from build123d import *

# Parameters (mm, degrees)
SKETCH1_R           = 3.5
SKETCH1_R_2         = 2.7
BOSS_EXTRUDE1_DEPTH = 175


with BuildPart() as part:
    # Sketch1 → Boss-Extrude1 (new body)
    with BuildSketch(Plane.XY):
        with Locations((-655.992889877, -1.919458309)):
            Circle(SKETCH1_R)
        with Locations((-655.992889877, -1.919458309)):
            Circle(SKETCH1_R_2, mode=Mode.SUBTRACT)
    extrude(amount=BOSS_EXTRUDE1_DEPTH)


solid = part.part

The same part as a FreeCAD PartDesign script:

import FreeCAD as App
import Part
import Sketcher
from FreeCAD import Vector

doc = App.newDocument("Part")
body = doc.addObject("PartDesign::Body", "Body")

# Sketch on XY plane
sketch1 = body.newObject("Sketcher::SketchObject", "Sketch")
sketch1.AttachmentSupport = (doc.getObject("XY_Plane"), [""])
sketch1.MapMode = "FlatFace"
sketch1.addGeometry(Part.Circle(Vector(-656, -1.9, 0), Vector(0, 0, 1), 3.5), False)
sketch1.addGeometry(Part.Circle(Vector(-656, -1.9, 0), Vector(0, 0, 1), 2.7), False)
sketch1.addConstraint(Sketcher.Constraint("Coincident", 1, 3, 0, 3))
sketch1.addConstraint(Sketcher.Constraint("Diameter", 0, 7.0))
sketch1.addConstraint(Sketcher.Constraint("Diameter", 1, 5.4))
sketch1.addConstraint(Sketcher.Constraint("DistanceX", 0, 3, -1, 1, 655.99289))
sketch1.addConstraint(Sketcher.Constraint("DistanceY", 0, 3, -1, 1, 1.919458))
pad1 = body.newObject("PartDesign::Pad", "Pad")
pad1.Profile = sketch1
pad1.Length = 175

doc.recompute()
